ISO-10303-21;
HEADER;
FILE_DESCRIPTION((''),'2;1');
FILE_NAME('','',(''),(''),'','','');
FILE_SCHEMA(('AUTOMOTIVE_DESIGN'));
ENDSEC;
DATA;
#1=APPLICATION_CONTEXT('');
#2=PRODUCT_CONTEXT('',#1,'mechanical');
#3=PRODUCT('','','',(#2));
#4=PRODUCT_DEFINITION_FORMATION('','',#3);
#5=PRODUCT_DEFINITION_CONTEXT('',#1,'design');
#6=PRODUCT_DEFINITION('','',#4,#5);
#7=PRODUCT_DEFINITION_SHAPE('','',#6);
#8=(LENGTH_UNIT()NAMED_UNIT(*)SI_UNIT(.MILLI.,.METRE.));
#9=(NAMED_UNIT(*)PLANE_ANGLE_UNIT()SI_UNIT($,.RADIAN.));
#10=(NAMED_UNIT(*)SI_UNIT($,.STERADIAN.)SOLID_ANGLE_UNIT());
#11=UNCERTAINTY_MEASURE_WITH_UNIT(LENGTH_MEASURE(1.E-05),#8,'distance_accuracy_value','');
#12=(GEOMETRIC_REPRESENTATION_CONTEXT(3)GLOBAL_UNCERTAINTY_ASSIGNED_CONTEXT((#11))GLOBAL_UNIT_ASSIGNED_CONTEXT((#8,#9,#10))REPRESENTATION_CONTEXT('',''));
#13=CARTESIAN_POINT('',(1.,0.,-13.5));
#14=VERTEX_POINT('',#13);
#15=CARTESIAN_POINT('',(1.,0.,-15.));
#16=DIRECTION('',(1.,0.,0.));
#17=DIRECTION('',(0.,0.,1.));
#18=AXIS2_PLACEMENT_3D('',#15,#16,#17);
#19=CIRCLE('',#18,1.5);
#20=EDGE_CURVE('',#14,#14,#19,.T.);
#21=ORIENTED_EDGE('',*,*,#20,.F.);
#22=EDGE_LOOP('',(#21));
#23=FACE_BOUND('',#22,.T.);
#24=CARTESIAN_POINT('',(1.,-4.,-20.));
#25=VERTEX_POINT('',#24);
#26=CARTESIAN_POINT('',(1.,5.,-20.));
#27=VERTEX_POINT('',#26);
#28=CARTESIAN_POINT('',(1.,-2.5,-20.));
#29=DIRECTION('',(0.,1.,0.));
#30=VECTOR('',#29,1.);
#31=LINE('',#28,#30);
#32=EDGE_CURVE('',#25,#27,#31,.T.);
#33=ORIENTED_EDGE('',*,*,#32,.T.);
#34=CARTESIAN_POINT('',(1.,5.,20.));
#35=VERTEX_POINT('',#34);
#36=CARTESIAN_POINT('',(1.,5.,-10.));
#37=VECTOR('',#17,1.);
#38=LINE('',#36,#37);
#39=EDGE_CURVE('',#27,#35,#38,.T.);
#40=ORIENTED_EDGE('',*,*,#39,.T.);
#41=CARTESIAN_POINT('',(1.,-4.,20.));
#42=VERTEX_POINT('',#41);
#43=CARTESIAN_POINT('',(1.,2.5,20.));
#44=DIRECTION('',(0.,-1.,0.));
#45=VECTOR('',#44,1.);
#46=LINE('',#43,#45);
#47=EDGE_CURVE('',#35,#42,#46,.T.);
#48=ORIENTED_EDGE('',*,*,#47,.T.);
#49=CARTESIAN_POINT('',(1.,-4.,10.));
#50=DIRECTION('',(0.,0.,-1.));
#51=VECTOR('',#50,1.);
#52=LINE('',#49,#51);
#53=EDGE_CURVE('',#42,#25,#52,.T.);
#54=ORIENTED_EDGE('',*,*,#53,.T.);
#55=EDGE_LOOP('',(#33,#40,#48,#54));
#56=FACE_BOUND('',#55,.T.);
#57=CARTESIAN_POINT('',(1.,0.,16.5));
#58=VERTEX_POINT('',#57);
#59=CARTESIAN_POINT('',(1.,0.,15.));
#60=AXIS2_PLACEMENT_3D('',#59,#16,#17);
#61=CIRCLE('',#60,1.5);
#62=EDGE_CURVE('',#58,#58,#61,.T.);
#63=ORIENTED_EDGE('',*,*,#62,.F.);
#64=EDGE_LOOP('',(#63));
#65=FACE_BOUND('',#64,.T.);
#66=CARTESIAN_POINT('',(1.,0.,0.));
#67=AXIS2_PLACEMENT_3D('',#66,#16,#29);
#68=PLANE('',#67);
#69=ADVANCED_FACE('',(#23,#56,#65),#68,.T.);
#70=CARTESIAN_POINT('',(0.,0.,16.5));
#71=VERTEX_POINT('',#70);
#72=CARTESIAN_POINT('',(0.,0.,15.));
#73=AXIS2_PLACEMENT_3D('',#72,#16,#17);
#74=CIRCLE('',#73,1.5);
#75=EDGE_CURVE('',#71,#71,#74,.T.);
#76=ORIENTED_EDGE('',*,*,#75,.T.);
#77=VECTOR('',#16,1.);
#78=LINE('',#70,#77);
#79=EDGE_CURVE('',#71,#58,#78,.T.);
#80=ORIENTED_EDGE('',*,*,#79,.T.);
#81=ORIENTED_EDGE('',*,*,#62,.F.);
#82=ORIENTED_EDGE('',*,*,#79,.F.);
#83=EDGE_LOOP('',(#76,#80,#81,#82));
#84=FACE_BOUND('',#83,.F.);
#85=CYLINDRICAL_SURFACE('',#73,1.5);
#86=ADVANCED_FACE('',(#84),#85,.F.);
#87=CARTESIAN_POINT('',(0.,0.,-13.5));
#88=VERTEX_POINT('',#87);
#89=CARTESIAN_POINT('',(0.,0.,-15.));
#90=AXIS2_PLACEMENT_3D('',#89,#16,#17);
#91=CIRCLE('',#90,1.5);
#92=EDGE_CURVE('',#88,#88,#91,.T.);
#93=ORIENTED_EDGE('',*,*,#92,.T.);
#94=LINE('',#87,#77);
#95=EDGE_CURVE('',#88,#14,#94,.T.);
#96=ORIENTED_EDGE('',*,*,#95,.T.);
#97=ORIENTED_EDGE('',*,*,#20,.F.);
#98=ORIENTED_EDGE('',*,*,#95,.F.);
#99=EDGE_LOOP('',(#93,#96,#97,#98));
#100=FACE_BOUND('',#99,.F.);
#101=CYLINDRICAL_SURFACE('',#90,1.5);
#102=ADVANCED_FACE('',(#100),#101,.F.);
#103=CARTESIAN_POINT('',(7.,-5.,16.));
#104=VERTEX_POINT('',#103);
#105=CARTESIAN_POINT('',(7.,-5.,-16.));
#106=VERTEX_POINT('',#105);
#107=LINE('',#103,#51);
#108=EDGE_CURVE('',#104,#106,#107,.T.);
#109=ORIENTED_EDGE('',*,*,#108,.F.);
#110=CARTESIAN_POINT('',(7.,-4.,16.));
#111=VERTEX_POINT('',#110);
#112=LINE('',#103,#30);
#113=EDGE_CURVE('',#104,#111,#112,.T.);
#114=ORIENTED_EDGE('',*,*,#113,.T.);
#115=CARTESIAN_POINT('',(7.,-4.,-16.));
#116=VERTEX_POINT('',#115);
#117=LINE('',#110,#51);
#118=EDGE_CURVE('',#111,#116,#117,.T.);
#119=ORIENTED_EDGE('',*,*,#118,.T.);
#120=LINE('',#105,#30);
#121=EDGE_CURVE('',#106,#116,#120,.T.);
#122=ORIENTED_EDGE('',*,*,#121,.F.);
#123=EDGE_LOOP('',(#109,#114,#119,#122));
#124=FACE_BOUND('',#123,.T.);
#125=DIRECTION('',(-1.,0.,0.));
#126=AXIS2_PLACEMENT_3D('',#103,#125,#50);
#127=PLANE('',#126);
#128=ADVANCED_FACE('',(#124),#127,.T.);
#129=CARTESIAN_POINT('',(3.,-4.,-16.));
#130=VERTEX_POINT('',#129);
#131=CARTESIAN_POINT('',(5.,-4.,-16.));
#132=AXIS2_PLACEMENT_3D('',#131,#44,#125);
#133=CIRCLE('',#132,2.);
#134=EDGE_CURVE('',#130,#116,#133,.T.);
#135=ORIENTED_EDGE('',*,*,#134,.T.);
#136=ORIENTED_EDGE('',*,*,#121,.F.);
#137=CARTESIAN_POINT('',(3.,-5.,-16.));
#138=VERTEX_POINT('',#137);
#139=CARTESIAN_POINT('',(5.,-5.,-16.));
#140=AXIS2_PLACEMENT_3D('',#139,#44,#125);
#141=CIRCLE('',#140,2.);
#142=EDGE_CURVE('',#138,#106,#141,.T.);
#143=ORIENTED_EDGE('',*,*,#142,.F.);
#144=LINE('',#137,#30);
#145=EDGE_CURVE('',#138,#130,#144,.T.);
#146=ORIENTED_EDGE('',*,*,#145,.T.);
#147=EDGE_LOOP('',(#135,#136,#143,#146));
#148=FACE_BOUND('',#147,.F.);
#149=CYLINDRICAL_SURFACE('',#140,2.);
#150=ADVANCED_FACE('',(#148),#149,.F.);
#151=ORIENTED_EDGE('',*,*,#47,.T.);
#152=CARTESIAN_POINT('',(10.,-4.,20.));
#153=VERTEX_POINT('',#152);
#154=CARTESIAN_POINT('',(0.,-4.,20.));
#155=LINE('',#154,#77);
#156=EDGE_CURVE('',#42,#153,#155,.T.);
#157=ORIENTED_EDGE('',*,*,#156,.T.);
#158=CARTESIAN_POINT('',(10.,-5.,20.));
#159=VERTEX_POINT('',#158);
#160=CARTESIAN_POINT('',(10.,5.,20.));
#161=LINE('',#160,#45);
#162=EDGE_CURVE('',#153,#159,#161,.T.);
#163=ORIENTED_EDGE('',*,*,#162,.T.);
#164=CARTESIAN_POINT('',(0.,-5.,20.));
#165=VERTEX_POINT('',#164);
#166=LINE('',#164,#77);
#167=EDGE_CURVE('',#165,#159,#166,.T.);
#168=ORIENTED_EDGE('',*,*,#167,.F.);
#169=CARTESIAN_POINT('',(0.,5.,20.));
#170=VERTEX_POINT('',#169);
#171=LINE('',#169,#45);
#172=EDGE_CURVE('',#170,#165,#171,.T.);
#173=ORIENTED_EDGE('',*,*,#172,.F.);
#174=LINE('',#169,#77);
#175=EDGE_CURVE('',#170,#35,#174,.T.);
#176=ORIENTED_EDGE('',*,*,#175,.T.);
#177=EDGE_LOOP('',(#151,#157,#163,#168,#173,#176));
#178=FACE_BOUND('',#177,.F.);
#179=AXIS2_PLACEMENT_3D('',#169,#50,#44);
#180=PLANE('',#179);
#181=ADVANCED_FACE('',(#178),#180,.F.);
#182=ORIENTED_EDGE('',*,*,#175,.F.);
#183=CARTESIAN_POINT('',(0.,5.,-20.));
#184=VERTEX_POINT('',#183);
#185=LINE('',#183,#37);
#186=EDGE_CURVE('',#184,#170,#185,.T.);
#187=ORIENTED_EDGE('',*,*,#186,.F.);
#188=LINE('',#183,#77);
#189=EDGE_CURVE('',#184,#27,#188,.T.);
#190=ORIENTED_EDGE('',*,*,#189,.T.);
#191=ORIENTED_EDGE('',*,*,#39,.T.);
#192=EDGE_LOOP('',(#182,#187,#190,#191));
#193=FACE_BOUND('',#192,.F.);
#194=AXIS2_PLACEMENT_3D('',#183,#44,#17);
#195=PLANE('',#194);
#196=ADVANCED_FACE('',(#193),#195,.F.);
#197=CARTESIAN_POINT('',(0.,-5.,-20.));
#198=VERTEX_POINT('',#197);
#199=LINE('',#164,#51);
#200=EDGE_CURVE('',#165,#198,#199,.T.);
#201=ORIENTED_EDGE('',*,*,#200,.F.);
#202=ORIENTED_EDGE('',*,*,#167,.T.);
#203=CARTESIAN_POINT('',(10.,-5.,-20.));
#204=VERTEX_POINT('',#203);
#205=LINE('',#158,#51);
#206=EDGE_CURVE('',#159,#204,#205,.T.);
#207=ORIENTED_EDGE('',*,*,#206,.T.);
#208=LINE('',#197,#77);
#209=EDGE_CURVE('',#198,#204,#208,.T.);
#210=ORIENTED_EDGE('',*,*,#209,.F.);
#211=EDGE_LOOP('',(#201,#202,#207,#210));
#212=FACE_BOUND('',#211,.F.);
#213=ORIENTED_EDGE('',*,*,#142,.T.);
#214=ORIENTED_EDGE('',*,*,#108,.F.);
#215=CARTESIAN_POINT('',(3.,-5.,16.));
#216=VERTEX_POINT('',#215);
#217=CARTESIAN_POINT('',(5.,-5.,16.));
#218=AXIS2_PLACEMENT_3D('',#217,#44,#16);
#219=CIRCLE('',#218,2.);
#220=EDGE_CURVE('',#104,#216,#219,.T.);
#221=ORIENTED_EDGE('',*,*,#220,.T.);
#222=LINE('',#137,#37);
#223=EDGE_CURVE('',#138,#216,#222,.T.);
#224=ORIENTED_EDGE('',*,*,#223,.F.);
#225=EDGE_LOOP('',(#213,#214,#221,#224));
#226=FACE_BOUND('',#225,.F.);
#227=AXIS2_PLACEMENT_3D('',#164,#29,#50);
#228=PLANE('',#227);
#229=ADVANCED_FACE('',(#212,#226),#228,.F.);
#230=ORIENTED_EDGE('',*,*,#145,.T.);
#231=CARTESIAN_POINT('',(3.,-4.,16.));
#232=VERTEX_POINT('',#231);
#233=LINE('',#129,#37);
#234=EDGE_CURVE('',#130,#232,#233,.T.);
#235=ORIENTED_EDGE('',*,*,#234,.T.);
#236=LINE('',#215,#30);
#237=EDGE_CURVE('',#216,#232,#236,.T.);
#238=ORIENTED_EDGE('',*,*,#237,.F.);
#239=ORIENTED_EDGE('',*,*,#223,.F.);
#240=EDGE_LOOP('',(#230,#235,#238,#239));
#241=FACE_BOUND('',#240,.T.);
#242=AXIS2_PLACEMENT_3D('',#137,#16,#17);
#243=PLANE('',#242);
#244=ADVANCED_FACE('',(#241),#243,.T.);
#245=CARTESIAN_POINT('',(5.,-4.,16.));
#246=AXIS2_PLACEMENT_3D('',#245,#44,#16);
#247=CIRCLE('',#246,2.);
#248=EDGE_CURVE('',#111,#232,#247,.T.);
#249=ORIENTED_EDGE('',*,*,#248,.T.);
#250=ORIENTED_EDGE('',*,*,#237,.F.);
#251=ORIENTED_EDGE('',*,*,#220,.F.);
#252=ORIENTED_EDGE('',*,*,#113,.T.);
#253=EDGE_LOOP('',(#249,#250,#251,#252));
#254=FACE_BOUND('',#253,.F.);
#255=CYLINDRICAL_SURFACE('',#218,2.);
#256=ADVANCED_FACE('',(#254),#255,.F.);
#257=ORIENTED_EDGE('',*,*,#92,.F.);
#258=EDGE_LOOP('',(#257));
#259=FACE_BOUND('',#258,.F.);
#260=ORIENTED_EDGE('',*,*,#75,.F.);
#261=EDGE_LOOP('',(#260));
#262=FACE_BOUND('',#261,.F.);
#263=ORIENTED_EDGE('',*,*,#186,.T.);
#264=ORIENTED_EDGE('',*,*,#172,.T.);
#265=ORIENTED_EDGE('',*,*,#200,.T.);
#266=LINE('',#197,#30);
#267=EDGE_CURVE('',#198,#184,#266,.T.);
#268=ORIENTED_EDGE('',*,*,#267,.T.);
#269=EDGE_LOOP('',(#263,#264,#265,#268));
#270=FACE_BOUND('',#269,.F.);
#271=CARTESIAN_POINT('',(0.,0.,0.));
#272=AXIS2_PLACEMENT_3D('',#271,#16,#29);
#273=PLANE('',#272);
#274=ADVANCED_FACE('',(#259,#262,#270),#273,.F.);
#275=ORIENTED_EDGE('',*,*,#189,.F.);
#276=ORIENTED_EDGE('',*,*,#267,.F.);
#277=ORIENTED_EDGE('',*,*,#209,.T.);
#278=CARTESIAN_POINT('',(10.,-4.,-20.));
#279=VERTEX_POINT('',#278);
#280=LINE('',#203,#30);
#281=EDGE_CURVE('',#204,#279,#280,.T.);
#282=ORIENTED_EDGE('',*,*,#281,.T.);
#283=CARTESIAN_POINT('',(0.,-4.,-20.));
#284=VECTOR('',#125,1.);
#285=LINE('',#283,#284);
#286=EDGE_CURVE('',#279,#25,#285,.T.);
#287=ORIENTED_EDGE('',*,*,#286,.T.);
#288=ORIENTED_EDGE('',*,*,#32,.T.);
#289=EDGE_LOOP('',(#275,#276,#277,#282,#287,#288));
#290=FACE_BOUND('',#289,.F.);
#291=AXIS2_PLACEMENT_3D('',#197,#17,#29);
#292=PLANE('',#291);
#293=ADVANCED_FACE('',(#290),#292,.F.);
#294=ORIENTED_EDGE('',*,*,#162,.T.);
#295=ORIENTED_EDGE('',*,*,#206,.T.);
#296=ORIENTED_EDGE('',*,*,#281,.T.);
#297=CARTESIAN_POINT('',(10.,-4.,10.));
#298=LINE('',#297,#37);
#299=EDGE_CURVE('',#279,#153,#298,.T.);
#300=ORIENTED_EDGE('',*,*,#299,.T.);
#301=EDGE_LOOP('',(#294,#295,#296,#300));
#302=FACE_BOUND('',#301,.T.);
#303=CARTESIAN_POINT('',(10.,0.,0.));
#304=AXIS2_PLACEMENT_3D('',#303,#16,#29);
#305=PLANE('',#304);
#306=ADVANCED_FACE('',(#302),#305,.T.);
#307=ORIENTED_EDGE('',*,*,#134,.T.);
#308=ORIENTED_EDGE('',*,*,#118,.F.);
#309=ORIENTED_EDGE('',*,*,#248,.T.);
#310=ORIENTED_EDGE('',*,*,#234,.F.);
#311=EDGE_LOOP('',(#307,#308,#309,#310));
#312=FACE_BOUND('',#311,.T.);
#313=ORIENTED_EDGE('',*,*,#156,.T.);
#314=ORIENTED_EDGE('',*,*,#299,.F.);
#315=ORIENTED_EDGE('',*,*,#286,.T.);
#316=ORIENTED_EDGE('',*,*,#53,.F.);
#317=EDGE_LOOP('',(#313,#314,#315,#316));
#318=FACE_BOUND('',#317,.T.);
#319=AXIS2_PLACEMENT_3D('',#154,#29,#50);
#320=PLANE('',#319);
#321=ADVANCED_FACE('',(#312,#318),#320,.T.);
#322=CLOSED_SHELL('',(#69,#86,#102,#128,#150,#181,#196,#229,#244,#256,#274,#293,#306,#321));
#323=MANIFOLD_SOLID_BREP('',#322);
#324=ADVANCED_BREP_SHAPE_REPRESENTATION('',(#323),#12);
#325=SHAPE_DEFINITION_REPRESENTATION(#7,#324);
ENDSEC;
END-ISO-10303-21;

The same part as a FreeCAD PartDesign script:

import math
import FreeCAD as App
import Part
import Sketcher

V = App.Vector
Q = App.Units.Quantity


def faces_at(feature, points):
    """Names of the faces that lie closest to the given points."""
    faces = feature.Shape.Faces
    near = lambda p: min(range(len(faces)), key=lambda i: faces[i].distToShape(Part.Vertex(*p))[0])
    return sorted({f"Face{near(p) + 1}" for p in points})


def add_polygon(sketch, points):
    """Adds a closed chain of lines whose ends are joined by coincident constraints."""
    first, n = sketch.GeometryCount, len(points)
    for a, b in zip(points, points[1:] + points[:1]):
        sketch.addGeometry(Part.LineSegment(App.Vector(*a, 0), App.Vector(*b, 0)), False)
    for i in range(n):
        sketch.addConstraint(Sketcher.Constraint("Coincident", first + i, 2, first + (i + 1) % n, 1))

doc = App.newDocument("Part")
body = doc.addObject("PartDesign::Body", "Body")

# Sketch on YZ plane
sketch1 = body.newObject("Sketcher::SketchObject", "Sketch")
sketch1.AttachmentSupport = (doc.getObject("YZ_Plane"), [""])
sketch1.MapMode = "FlatFace"
add_polygon(sketch1, [(-5, 20), (-5, -20), (5, -20), (5, 20)])  # lines 0-3
sketch1.addConstraint(Sketcher.Constraint("Vertical", 0))
sketch1.addConstraint(Sketcher.Constraint("Horizontal", 1))
sketch1.addConstraint(Sketcher.Constraint("Vertical", 2))
sketch1.addConstraint(Sketcher.Constraint("Horizontal", 3))
sketch1.addConstraint(Sketcher.Constraint("Symmetric", 0, 2, 2, 2, -1, 1))
sketch1.addConstraint(Sketcher.Constraint("DistanceX", 1, 1, 1, 2, Q("10 mm")))
sketch1.addConstraint(Sketcher.Constraint("DistanceY", 0, 2, 0, 1, Q("40 mm")))
pad1 = body.newObject("PartDesign::Pad", "Pad")
pad1.Profile = sketch1
pad1.Length = 10
doc.recompute()

thickness = body.newObject("PartDesign::Thickness", "Thickness")
thickness.Base = (pad1, faces_at(pad1, [
    (3.333, 1.667, 20),
    (3.333, 5, -6.667),
    (3.333, -1.667, -20),
    (10, -1.667, 6.667),
]))
thickness.Value = 1
thickness.Reversed = True
thickness.Join = "Intersection"

# Sketch on YZ plane
sketch2 = body.newObject("Sketcher::SketchObject", "Sketch001")
sketch2.AttachmentSupport = (doc.getObject("YZ_Plane"), [""])
sketch2.MapMode = "FlatFace"
sketch2.addGeometry(Part.Circle(V(0, -15, 0), V(0, 0, 1), 1.5), False)
sketch2.addGeometry(Part.Circle(V(0, 15, 0), V(0, 0, 1), 1.5), False)
sketch2.addConstraint(Sketcher.Constraint("Equal", 0, 1))
sketch2.addConstraint(Sketcher.Constraint("Symmetric", 0, 3, 1, 3, -1, 1))
sketch2.addConstraint(Sketcher.Constraint("PointOnObject", 0, 3, -2))
sketch2.addConstraint(Sketcher.Constraint("Diameter", 0, Q("3 mm")))
sketch2.addConstraint(Sketcher.Constraint("DistanceY", 0, 3, -1, 1, Q("15 mm")))
doc.recompute()
hole = body.newObject("PartDesign::Hole", "Hole")
hole.Profile = sketch2
hole.ThreadType = "None"
hole.Diameter = 3
hole.DepthType = "ThroughAll"
hole.Reversed = True

# Sketch on XZ plane
sketch3 = body.newObject("Sketcher::SketchObject", "Sketch002")
sketch3.AttachmentSupport = (doc.getObject("XZ_Plane"), [""])
sketch3.MapMode = "FlatFace"
sketch3.AttachmentOffset = App.Placement(V(0, 0, 5), App.Rotation())
sketch3.addGeometry(Part.LineSegment(V(3, 16, 0), V(3, -16, 0)), False)
sketch3.addGeometry(Part.ArcOfCircle(Part.Circle(V(5, -16, 0), V(0, 0, 1), 2), math.radians(180), math.radians(360)), False)
sketch3.addGeometry(Part.LineSegment(V(7, -16, 0), V(7, 16, 0)), False)
sketch3.addGeometry(Part.ArcOfCircle(Part.Circle(V(5, 16, 0), V(0, 0, 1), 2), math.radians(0), math.radians(180)), False)
sketch3.addConstraint(Sketcher.Constraint("Tangent", 0, 2, 1, 1))
sketch3.addConstraint(Sketcher.Constraint("Tangent", 1, 2, 2, 1))
sketch3.addConstraint(Sketcher.Constraint("Tangent", 2, 2, 3, 1))
sketch3.addConstraint(Sketcher.Constraint("Tangent", 3, 2, 0, 1))
sketch3.addConstraint(Sketcher.Constraint("Vertical", 0))
sketch3.addConstraint(Sketcher.Constraint("Vertical", 2))
sketch3.addConstraint(Sketcher.Constraint("Radius", 1, Q("2 mm")))
sketch3.addConstraint(Sketcher.Constraint("DistanceX", -1, 1, 1, 3, Q("5 mm")))
sketch3.addConstraint(Sketcher.Constraint("DistanceY", 0, 2, 0, 1, Q("32 mm")))
sketch3.addConstraint(Sketcher.Constraint("DistanceY", 1, 3, -1, 1, Q("16 mm")))
pocket1 = body.newObject("PartDesign::Pocket", "Pocket")
pocket1.Profile = sketch3
pocket1.Length = 1

doc.recompute()
